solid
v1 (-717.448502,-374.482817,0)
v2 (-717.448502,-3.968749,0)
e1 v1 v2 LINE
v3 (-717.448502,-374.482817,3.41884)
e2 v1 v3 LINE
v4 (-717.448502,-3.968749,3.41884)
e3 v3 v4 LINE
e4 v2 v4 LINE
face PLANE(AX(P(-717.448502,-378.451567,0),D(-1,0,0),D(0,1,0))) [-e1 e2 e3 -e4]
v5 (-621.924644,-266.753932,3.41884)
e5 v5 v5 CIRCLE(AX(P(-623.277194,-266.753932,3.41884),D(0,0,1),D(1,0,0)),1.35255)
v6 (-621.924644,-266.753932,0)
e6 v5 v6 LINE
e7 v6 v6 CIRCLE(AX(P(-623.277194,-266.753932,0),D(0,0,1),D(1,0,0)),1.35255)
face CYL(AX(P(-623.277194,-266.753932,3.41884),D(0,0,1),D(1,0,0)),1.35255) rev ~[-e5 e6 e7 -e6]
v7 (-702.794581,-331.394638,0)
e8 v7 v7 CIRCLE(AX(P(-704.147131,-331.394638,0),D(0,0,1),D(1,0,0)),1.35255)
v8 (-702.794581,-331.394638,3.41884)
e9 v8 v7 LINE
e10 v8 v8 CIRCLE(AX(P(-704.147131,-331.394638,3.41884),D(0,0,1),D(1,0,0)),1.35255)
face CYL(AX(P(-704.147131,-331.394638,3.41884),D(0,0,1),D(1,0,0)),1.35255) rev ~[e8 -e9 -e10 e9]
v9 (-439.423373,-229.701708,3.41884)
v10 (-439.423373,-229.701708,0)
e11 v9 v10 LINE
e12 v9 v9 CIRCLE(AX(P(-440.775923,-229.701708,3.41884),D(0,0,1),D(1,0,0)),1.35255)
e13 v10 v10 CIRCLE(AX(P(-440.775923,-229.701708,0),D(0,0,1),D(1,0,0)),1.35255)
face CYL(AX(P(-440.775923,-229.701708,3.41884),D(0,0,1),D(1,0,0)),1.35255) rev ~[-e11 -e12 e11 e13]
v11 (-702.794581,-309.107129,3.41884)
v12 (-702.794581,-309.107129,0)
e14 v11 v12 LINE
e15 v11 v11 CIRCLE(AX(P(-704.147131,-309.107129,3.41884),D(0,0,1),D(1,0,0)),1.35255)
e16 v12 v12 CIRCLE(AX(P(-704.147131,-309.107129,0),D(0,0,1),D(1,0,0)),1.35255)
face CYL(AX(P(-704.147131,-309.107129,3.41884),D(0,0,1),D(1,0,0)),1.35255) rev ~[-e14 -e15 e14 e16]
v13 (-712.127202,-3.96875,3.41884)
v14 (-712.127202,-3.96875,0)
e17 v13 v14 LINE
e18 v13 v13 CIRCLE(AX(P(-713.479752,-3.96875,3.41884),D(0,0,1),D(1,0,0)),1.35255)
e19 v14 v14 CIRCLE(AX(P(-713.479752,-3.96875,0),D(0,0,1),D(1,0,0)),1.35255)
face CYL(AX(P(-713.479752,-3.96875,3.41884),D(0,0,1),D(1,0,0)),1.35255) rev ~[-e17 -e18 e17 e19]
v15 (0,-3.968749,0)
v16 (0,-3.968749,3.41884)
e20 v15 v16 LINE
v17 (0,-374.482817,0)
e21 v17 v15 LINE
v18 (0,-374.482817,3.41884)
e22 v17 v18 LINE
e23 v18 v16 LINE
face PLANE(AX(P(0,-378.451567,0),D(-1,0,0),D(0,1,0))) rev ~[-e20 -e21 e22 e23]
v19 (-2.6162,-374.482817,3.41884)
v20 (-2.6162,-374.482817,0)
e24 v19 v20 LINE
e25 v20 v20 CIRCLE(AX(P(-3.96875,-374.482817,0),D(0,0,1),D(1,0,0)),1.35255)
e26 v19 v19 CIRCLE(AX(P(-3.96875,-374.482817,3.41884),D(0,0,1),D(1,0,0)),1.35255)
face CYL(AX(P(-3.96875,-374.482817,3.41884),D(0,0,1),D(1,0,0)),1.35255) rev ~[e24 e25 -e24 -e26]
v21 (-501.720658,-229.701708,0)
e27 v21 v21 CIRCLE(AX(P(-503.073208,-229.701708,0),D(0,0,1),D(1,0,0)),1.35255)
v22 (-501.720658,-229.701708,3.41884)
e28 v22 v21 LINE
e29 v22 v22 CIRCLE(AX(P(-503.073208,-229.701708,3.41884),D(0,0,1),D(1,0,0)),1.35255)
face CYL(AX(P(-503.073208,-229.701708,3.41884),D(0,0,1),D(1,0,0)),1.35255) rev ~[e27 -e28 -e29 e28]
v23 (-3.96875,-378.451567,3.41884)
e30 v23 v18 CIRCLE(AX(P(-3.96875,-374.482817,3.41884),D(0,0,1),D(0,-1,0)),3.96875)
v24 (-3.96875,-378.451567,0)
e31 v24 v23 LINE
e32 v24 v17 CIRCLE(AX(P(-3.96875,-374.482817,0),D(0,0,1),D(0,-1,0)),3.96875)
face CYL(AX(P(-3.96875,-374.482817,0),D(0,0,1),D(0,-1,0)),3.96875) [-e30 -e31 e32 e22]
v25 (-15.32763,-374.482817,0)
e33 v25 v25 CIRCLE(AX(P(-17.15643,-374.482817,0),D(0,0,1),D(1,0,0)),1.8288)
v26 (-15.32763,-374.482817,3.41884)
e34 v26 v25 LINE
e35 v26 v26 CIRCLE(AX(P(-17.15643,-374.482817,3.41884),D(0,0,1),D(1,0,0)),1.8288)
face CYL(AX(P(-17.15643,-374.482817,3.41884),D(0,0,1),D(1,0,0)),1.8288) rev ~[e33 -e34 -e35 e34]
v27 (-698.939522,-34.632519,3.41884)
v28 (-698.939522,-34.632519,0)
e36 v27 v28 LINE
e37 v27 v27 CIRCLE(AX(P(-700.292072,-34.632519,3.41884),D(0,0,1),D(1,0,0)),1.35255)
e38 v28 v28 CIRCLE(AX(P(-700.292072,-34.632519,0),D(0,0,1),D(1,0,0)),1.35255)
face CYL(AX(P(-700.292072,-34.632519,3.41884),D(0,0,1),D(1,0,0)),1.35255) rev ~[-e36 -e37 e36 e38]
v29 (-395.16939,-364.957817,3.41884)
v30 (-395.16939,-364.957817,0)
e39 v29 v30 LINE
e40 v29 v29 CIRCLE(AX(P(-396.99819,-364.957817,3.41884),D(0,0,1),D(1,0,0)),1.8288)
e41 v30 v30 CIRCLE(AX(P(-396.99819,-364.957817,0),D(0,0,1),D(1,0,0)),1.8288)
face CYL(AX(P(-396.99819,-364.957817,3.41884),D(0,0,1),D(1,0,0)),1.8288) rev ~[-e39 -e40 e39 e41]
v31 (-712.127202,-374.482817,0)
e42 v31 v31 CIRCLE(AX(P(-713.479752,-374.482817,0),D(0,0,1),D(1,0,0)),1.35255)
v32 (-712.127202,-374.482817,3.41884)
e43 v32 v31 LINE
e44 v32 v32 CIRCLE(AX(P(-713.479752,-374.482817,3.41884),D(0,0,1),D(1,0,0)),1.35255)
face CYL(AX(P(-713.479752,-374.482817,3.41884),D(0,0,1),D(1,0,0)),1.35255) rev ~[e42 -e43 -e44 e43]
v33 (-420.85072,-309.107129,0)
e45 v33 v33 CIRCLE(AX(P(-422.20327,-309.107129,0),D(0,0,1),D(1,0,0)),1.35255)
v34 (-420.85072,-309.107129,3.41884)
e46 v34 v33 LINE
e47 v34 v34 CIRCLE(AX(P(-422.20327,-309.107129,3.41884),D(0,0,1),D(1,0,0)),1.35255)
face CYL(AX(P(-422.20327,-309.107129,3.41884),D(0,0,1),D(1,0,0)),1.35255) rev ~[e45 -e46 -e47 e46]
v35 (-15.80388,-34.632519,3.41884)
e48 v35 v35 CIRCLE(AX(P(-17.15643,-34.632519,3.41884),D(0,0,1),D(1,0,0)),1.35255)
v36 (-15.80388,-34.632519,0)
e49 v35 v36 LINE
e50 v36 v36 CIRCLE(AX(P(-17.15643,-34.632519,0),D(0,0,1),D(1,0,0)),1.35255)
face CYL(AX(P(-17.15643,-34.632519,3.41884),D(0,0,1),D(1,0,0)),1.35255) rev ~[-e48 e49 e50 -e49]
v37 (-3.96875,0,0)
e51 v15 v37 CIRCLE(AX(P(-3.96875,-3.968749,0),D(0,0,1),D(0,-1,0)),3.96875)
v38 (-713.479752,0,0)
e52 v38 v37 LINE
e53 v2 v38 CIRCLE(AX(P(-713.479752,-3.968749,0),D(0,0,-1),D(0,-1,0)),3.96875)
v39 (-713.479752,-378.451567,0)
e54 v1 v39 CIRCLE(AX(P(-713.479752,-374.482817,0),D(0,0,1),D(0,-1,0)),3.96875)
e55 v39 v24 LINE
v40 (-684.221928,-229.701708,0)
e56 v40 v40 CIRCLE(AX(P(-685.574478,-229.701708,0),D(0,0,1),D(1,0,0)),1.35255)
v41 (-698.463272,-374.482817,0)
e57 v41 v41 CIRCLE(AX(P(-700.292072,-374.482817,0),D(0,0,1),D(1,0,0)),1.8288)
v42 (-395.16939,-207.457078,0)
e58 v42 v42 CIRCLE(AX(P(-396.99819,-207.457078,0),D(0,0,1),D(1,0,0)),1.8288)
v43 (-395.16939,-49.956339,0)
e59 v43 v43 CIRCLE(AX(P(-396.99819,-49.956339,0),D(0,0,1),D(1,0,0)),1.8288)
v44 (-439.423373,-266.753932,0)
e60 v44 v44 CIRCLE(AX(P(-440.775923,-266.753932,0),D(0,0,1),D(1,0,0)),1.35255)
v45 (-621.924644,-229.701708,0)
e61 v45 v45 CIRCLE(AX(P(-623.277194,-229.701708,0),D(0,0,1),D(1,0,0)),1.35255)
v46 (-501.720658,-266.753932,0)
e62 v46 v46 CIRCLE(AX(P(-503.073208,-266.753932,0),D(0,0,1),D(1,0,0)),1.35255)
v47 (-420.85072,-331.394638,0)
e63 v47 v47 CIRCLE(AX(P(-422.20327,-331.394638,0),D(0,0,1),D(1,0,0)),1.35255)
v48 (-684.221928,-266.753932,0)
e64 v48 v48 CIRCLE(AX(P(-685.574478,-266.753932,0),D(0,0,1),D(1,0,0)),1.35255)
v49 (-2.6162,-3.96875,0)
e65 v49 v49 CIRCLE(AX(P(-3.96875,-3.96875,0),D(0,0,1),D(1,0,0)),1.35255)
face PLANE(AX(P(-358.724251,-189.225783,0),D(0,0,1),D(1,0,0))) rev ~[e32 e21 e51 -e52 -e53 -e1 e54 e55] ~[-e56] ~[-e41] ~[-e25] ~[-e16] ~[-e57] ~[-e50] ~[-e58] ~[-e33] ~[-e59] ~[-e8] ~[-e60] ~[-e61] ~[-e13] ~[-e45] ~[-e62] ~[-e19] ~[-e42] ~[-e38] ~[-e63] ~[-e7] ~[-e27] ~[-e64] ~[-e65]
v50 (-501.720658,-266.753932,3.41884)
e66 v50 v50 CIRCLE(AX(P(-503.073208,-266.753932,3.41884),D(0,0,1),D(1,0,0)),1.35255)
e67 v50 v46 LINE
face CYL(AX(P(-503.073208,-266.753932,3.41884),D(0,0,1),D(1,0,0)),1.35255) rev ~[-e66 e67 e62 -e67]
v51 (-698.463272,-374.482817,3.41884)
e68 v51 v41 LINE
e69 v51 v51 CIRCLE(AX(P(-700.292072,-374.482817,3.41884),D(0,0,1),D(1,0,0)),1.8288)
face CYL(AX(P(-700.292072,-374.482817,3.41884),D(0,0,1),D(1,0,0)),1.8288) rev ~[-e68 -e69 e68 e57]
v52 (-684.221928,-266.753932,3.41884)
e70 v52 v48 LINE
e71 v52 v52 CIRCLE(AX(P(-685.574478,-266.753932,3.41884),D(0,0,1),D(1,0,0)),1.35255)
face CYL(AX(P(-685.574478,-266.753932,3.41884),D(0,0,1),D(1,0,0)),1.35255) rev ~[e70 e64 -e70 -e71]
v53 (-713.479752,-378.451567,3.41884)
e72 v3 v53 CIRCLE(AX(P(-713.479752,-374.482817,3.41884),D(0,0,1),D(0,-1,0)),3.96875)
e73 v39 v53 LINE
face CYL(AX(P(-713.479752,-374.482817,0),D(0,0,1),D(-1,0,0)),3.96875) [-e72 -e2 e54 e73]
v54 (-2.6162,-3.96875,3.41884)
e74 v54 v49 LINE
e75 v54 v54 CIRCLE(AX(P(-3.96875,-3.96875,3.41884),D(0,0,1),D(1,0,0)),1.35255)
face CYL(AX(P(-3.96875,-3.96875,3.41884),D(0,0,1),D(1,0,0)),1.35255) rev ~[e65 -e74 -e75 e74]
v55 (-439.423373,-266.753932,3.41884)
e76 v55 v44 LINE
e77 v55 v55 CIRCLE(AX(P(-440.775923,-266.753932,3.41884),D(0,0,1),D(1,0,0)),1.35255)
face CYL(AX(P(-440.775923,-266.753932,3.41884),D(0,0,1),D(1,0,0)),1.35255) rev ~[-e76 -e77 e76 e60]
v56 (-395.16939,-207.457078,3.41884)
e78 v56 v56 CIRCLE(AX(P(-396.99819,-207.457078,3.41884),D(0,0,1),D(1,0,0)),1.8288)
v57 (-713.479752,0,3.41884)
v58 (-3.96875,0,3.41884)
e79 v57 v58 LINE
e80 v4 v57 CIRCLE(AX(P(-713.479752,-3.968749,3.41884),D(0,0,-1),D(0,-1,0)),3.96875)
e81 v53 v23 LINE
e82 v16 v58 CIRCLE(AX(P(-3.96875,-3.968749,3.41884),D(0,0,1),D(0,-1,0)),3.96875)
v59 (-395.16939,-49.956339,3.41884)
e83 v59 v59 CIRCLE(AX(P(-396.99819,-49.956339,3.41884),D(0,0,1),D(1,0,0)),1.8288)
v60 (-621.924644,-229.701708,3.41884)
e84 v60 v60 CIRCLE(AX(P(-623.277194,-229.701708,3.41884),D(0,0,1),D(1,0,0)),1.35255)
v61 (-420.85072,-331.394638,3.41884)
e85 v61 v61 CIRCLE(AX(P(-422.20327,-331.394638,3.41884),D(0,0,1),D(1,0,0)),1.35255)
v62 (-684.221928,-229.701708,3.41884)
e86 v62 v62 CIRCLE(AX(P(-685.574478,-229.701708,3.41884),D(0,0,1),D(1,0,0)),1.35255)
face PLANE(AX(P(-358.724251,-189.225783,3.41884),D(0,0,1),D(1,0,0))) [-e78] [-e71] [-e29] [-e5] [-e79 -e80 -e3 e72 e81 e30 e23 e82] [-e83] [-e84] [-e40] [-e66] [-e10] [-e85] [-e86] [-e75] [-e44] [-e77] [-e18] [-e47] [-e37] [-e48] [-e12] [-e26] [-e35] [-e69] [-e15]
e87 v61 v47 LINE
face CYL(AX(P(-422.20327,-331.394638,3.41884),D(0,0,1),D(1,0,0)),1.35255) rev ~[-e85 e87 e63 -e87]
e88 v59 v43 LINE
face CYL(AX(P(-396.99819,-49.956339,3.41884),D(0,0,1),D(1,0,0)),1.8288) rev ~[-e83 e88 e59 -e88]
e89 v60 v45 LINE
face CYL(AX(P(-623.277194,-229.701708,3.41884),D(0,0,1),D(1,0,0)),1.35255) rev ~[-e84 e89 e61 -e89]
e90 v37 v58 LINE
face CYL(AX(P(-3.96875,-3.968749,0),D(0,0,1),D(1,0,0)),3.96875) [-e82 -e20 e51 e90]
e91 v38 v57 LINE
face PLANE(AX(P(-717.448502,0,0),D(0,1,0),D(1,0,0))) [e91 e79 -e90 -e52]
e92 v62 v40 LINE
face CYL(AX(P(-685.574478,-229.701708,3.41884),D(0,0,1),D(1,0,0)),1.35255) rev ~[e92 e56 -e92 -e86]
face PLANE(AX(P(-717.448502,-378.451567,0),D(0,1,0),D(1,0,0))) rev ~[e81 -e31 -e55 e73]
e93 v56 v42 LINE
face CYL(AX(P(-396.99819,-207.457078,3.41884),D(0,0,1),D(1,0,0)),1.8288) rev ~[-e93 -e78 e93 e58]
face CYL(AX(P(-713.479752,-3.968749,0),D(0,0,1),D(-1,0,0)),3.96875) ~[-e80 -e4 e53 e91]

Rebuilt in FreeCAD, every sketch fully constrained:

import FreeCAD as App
import Part
import Sketcher
Q = App.Units.Quantity


def edges_at(feature, points):
    """Names of the edges that pass closest to the given points."""
    edges = feature.Shape.Edges
    near = lambda p: min(range(len(edges)), key=lambda i: edges[i].distToShape(Part.Vertex(*p))[0])
    return sorted({f"Edge{near(p) + 1}" for p in points})

doc = App.newDocument("Part")
body = doc.addObject("PartDesign::Body", "Body")

sketch1 = body.newObject("Sketcher::SketchObject", "Sketch")
sketch1.AttachmentSupport = (doc.getObject("XY_Plane"), [""])
sketch1.MapMode = "FlatFace"
sketch1.addGeometry([
    Part.LineSegment(App.Vector(-717, 0, 0), App.Vector(-717, -378, 0)),
    Part.LineSegment(App.Vector(-717, -378, 0), App.Vector(0, -378, 0)),
    Part.LineSegment(App.Vector(0, -378, 0), App.Vector(0, 0, 0)),
    Part.LineSegment(App.Vector(0, 0, 0), App.Vector(-717, 0, 0)),
], False)
sketch1.addConstraint([
    Sketcher.Constraint("Coincident", 0, 2, 1, 1),
    Sketcher.Constraint("Coincident", 1, 2, 2, 1),
    Sketcher.Constraint("Coincident", 2, 2, 3, 1),
    Sketcher.Constraint("Coincident", 3, 2, 0, 1),
    Sketcher.Constraint("Vertical", 0),
    Sketcher.Constraint("Horizontal", 1),
    Sketcher.Constraint("Vertical", 2),
    Sketcher.Constraint("Horizontal", 3),
    Sketcher.Constraint("Coincident", 2, 2, -1, 1),
    Sketcher.Constraint("DistanceX", 1, 1, 1, 2, 717.448502),
    Sketcher.Constraint("DistanceY", 0, 2, 0, 1, 378.451567),
])
pad1 = body.newObject("PartDesign::Pad", "Pad")
pad1.Profile = sketch1
pad1.Length = Q("0.1346 in")
doc.recompute()

fillet = body.newObject("PartDesign::Fillet", "Fillet")
fillet.Base = (pad1, edges_at(pad1, [
    (-717.449, 0, 1.709),
    (-717.449, -378.452, 1.709),
    (0, -378.452, 1.709),
    (0, 0, 1.709),
]))
fillet.Radius = Q("0.15625 in")

sketch2 = body.newObject("Sketcher::SketchObject", "Sketch001")
sketch2.AttachmentSupport = (doc.getObject("XY_Plane"), [""])
sketch2.MapMode = "FlatFace"
sketch2.AttachmentOffset = App.Placement(App.Vector(0, 0, 0.1346 * 25.4), App.Rotation())
sketch2.addGeometry([
    Part.Circle(App.Vector(-713.5, -4, 0), App.Vector(0, 0, 1), 1.4),
    Part.Circle(App.Vector(-4, -4, 0), App.Vector(0, 0, 1), 1.4),
    Part.Circle(App.Vector(-713.5, -374.5, 0), App.Vector(0, 0, 1), 1.4),
    Part.Circle(App.Vector(-4, -374.5, 0), App.Vector(0, 0, 1), 1.4),
    Part.Circle(App.Vector(-704.1, -309.1, 0), App.Vector(0, 0, 1), 1.4),
    Part.Circle(App.Vector(-704.1, -331.4, 0), App.Vector(0, 0, 1), 1.4),
    Part.Circle(App.Vector(-422.2, -331.4, 0), App.Vector(0, 0, 1), 1.4),
    Part.Circle(App.Vector(-422.2, -309.1, 0), App.Vector(0, 0, 1), 1.4),
    Part.Circle(App.Vector(-17.2, -374.5, 0), App.Vector(0, 0, 1), 1.8),
    Part.Circle(App.Vector(-700.3, -374.5, 0), App.Vector(0, 0, 1), 1.8),
    Part.Circle(App.Vector(-440.8, -266.8, 0), App.Vector(0, 0, 1), 1.4),
    Part.Circle(App.Vector(-440.8, -229.7, 0), App.Vector(0, 0, 1), 1.4),
    Part.Circle(App.Vector(-503.1, -229.7, 0), App.Vector(0, 0, 1), 1.4),
    Part.Circle(App.Vector(-503.1, -266.8, 0), App.Vector(0, 0, 1), 1.4),
    Part.Circle(App.Vector(-700.3, -34.6, 0), App.Vector(0, 0, 1), 1.4),
    Part.Circle(App.Vector(-17.2, -34.6, 0), App.Vector(0, 0, 1), 1.4),
    Part.Circle(App.Vector(-623.3, -266.8, 0), App.Vector(0, 0, 1), 1.4),
    Part.Circle(App.Vector(-623.3, -229.7, 0), App.Vector(0, 0, 1), 1.4),
    Part.Circle(App.Vector(-685.6, -229.7, 0), App.Vector(0, 0, 1), 1.4),
    Part.Circle(App.Vector(-685.6, -266.8, 0), App.Vector(0, 0, 1), 1.4),
    Part.Circle(App.Vector(-397, -50, 0), App.Vector(0, 0, 1), 1.8),
    Part.Circle(App.Vector(-397, -365, 0), App.Vector(0, 0, 1), 1.8),
    Part.Circle(App.Vector(-397, -207.5, 0), App.Vector(0, 0, 1), 1.8),
], False)
sketch2.addConstraint([
    Sketcher.Constraint("Equal", 0, 1),
    Sketcher.Constraint("Equal", 1, 2),
    Sketcher.Constraint("Equal", 2, 3),
    Sketcher.Constraint("Equal", 3, 4),
    Sketcher.Constraint("Equal", 4, 5),
    Sketcher.Constraint("Equal", 5, 6),
    Sketcher.Constraint("Equal", 6, 7),
    Sketcher.Constraint("Equal", 8, 9),
    Sketcher.Constraint("Equal", 7, 10),
    Sketcher.Constraint("Equal", 10, 11),
    Sketcher.Constraint("Equal", 11, 12),
    Sketcher.Constraint("Equal", 12, 13),
    Sketcher.Constraint("Equal", 13, 14),
    Sketcher.Constraint("Equal", 14, 15),
    Sketcher.Constraint("Equal", 15, 16),
    Sketcher.Constraint("Equal", 16, 17),
    Sketcher.Constraint("Equal", 17, 18),
    Sketcher.Constraint("Equal", 18, 19),
    Sketcher.Constraint("Equal", 9, 20),
    Sketcher.Constraint("Equal", 20, 21),
    Sketcher.Constraint("Equal", 21, 22),
    Sketcher.Constraint("Horizontal", 0, 3, 1, 3),
    Sketcher.Constraint("Horizontal", 2, 3, 3, 3),
    Sketcher.Constraint("Horizontal", 5, 3, 6, 3),
    Sketcher.Constraint("Horizontal", 4, 3, 7, 3),
    Sketcher.Constraint("Horizontal", 3, 3, 8, 3),
    Sketcher.Constraint("Horizontal", 8, 3, 9, 3),
    Sketcher.Constraint("Horizontal", 11, 3, 12, 3),
    Sketcher.Constraint("Horizontal", 10, 3, 13, 3),
    Sketcher.Constraint("Horizontal", 14, 3, 15, 3),
    Sketcher.Constraint("Horizontal", 13, 3, 16, 3),
    Sketcher.Constraint("Horizontal", 12, 3, 17, 3),
    Sketcher.Constraint("Horizontal", 17, 3, 18, 3),
    Sketcher.Constraint("Horizontal", 16, 3, 19, 3),
    Sketcher.Constraint("Vertical", 0, 3, 2, 3),
    Sketcher.Constraint("Vertical", 1, 3, 3, 3),
    Sketcher.Constraint("Vertical", 4, 3, 5, 3),
    Sketcher.Constraint("Vertical", 6, 3, 7, 3),
    Sketcher.Constraint("Vertical", 10, 3, 11, 3),
    Sketcher.Constraint("Vertical", 12, 3, 13, 3),
    Sketcher.Constraint("Vertical", 9, 3, 14, 3),
    Sketcher.Constraint("Vertical", 8, 3, 15, 3),
    Sketcher.Constraint("Vertical", 16, 3, 17, 3),
    Sketcher.Constraint("Vertical", 18, 3, 19, 3),
    Sketcher.Constraint("Vertical", 20, 3, 21, 3),
    Sketcher.Constraint("Vertical", 21, 3, 22, 3),
    Sketcher.Constraint("Diameter", 8, Q("0.144 in")),
    Sketcher.Constraint("Diameter", 0, Q("0.1065 in")),
    Sketcher.Constraint("DistanceY", 0, 3, -1, 1, Q("0.15625 in")),
    Sketcher.Constraint("DistanceX", 1, 3, -1, 1, Q("0.15625 in")),
    Sketcher.Constraint("DistanceX", 8, 3, 3, 3, Q("0.5192 in")),
    Sketcher.Constraint("DistanceX", 2, 3, 9, 3, Q("0.5192 in")),
    Sketcher.Constraint("DistanceX", 0, 3, 1, 3, 709.511002),
    Sketcher.Constraint("DistanceX", 5, 3, 8, 3, 686.990701),
    Sketcher.Constraint("DistanceX", 9, 3, 6, 3, 278.088802),
    Sketcher.Constraint("DistanceY", 8, 3, 15, 3, 339.850298),
    Sketcher.Constraint("DistanceY", 4, 3, -1, 1, 309.107129),
    Sketcher.Constraint("DistanceY", 5, 3, -1, 1, 331.394638),
    Sketcher.Constraint("DistanceY", 10, 3, -1, 1, 266.753932),
    Sketcher.Constraint("DistanceY", 11, 3, -1, 1, 229.701708),
    Sketcher.Constraint("DistanceX", 12, 3, -1, 1, 503.073208),
    Sketcher.Constraint("DistanceY", 14, 3, -1, 1, 34.632519),
    Sketcher.Constraint("DistanceX", 18, 3, -1, 1, 685.574478),
    Sketcher.Constraint("DistanceX", 20, 3, -1, 1, 396.99819),
    Sketcher.Constraint("DistanceY", 20, 3, -1, 1, 49.956339),
    Sketcher.Constraint("DistanceY", 22, 3, -1, 1, 207.457078),
    Sketcher.Constraint("DistanceX", 9, 3, 10, 3, 259.516149),
    Sketcher.Constraint("DistanceY", 21, 3, 6, 3, 33.563179),
    Sketcher.Constraint("DistanceX", 16, 3, -1, 1, 623.277194),
])
pocket1 = body.newObject("PartDesign::Pocket", "Pocket")
pocket1.Profile = sketch2
pocket1.Type = "ThroughAll"

doc.recompute()
